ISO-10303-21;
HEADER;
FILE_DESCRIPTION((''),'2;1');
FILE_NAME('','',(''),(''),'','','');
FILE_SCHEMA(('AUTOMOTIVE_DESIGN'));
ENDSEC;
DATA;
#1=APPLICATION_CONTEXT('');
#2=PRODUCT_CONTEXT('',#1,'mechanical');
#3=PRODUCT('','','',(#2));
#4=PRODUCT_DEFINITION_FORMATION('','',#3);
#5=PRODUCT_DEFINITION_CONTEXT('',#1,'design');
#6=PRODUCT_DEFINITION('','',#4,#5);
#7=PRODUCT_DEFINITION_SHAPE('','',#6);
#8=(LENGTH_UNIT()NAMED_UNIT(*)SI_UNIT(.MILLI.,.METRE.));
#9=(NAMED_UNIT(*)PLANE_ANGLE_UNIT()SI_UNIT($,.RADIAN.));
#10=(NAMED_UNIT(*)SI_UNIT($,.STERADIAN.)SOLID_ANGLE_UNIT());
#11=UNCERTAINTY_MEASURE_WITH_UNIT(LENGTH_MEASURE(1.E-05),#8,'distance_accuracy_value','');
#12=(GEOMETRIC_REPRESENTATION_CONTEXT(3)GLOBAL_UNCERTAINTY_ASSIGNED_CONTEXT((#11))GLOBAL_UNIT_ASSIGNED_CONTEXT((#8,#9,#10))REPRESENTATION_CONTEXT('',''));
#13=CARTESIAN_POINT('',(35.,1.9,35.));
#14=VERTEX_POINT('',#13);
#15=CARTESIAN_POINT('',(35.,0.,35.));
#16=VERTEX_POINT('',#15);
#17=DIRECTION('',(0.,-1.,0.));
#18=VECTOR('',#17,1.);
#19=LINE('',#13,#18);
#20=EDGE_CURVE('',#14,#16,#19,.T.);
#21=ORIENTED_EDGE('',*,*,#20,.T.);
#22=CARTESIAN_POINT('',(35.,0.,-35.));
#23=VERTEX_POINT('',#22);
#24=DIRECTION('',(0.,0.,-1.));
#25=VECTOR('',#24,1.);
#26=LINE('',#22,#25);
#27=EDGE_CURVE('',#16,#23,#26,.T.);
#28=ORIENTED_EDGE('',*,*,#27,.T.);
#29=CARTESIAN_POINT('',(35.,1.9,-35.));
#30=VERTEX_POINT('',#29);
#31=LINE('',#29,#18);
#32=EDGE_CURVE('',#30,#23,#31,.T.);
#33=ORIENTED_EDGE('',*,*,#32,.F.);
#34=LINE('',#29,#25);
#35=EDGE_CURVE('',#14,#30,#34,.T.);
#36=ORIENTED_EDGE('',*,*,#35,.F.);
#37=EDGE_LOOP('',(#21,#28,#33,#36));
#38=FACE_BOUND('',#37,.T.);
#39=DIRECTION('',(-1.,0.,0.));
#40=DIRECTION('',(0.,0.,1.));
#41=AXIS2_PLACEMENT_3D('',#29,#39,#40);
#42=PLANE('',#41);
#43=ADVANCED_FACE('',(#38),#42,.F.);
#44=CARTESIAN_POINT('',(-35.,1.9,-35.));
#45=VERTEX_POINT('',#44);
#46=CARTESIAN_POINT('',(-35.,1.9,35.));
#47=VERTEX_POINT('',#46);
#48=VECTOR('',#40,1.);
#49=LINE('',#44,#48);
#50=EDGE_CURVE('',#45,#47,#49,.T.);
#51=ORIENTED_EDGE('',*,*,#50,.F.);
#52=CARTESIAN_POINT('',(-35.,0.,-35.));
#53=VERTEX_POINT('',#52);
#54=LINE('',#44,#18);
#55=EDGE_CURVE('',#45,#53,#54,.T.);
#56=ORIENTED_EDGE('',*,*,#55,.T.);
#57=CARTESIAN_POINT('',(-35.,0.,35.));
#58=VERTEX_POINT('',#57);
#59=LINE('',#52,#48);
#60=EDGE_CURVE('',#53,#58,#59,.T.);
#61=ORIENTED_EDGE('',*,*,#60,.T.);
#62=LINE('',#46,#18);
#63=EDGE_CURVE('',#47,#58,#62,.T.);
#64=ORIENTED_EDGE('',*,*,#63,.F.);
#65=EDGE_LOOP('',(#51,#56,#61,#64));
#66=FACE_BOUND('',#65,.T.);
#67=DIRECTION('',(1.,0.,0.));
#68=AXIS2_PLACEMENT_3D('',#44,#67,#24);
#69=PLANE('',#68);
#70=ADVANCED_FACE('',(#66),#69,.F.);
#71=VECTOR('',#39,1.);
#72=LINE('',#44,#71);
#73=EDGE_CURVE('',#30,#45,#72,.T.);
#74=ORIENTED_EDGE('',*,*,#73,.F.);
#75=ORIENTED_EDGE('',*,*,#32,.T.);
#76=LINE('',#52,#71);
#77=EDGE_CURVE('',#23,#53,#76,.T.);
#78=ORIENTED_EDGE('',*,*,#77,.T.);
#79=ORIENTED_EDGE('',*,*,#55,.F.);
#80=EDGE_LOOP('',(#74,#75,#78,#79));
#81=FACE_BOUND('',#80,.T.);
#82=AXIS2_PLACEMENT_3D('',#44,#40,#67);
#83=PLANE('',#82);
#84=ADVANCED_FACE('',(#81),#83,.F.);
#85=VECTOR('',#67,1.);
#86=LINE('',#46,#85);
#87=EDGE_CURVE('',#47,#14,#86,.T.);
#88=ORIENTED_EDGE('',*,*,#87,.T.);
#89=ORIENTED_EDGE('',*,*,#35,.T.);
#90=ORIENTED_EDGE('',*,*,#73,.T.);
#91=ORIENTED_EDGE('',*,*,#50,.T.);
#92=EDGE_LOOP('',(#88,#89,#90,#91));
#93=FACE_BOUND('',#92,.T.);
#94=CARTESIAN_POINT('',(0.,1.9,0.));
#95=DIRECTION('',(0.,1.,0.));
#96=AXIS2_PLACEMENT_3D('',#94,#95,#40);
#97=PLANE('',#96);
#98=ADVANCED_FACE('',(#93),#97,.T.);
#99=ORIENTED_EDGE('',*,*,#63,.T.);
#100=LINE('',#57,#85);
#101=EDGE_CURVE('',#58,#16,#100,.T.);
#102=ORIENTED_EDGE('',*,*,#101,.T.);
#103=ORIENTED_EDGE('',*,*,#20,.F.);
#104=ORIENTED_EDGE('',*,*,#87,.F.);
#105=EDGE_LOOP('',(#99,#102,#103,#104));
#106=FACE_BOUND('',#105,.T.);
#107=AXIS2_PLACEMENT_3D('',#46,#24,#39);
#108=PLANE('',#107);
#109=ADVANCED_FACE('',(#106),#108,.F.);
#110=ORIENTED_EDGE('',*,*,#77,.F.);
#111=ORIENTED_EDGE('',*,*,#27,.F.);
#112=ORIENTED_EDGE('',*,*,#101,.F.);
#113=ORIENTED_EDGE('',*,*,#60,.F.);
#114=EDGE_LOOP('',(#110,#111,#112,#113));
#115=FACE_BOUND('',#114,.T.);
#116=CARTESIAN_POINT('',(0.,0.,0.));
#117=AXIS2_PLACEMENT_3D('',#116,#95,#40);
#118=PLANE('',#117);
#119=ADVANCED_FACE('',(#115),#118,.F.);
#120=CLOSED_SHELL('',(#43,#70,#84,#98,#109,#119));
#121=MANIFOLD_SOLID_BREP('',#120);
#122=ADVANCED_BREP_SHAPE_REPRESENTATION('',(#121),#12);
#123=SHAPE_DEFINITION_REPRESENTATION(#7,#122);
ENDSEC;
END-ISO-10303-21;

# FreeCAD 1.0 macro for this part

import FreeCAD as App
import Part
import Sketcher

V = App.Vector
Q = App.Units.Quantity


def add_polygon(sketch, points):
    """Adds a closed chain of lines whose ends are joined by coincident constraints."""
    first, n = sketch.GeometryCount, len(points)
    for a, b in zip(points, points[1:] + points[:1]):
        sketch.addGeometry(Part.LineSegment(App.Vector(*a, 0), App.Vector(*b, 0)), False)
    for i in range(n):
        sketch.addConstraint(Sketcher.Constraint("Coincident", first + i, 2, first + (i + 1) % n, 1))

doc = App.newDocument("Part")
params = doc.addObject("Spreadsheet::Sheet", "Params")
for row, (alias, value) in enumerate([
    ("sketch1_width", "70 mm"),
    ("pad1_length", "1.9 mm"),
], start=1):
    params.set(f"A{row}", alias)
    params.set(f"B{row}", "=" + value)
    params.setAlias(f"B{row}", alias)

body = doc.addObject("PartDesign::Body", "Body")

# Sketch on XZ plane
sketch1 = body.newObject("Sketcher::SketchObject", "Sketch")
sketch1.AttachmentSupport = (doc.getObject("XZ_Plane"), [""])
sketch1.MapMode = "FlatFace"
add_polygon(sketch1, [(-35, -35), (-35, 35), (35, 35), (35, -35)])  # lines 0-3
sketch1.addConstraint(Sketcher.Constraint("Vertical", 0))
sketch1.addConstraint(Sketcher.Constraint("Horizontal", 1))
sketch1.addConstraint(Sketcher.Constraint("Vertical", 2))
sketch1.addConstraint(Sketcher.Constraint("Horizontal", 3))
sketch1.addConstraint(Sketcher.Constraint("Symmetric", 0, 2, 2, 2, -1, 1))
sketch1.addConstraint(Sketcher.Constraint("Equal", 3, 0))
sketch1.addConstraint(Sketcher.Constraint("DistanceX", 1, 1, 1, 2, Q("70 mm")))
sketch1.setExpression("Constraints[10]", "Params.sketch1_width")
pad1 = body.newObject("PartDesign::Pad", "Pad")
pad1.Profile = sketch1
pad1.setExpression("Length", "Params.pad1_length")
pad1.Reversed = True

doc.recompute()
